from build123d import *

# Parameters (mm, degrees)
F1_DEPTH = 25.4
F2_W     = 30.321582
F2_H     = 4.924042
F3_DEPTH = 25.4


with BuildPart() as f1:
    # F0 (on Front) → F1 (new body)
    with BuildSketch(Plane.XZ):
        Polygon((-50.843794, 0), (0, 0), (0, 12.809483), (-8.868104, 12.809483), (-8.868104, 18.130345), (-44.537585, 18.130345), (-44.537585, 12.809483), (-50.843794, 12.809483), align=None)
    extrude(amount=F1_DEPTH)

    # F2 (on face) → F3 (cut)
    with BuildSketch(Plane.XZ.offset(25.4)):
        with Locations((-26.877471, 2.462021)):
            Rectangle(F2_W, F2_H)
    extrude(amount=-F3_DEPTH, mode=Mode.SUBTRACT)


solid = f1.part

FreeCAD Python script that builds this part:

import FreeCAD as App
import Part
import Sketcher
from FreeCAD import Vector
Q = App.Units.Quantity

doc = App.newDocument("Part")
body = doc.addObject("PartDesign::Body", "Body")

# Sketch on XZ plane
sketch1 = body.newObject("Sketcher::SketchObject", "Sketch")
sketch1.AttachmentSupport = (doc.getObject("XZ_Plane"), [""])
sketch1.MapMode = "FlatFace"
sketch1.addGeometry([
    Part.LineSegment(Vector(-51, 0, 0), Vector(0, 0, 0)),  # 0
    Part.LineSegment(Vector(0, 0, 0), Vector(0, 13, 0)),  # 1
    Part.LineSegment(Vector(0, 13, 0), Vector(-9, 13, 0)),  # 2
    Part.LineSegment(Vector(-9, 13, 0), Vector(-9, 18, 0)),  # 3
    Part.LineSegment(Vector(-9, 18, 0), Vector(-45, 18, 0)),  # 4
    Part.LineSegment(Vector(-45, 18, 0), Vector(-45, 13, 0)),  # 5
    Part.LineSegment(Vector(-45, 13, 0), Vector(-51, 13, 0)),  # 6
    Part.LineSegment(Vector(-51, 13, 0), Vector(-51, 0, 0)),  # 7
], False)
sketch1.addConstraint([
    Sketcher.Constraint("Coincident", 0, 2, 1, 1),
    Sketcher.Constraint("Coincident", 1, 2, 2, 1),
    Sketcher.Constraint("Coincident", 2, 2, 3, 1),
    Sketcher.Constraint("Coincident", 3, 2, 4, 1),
    Sketcher.Constraint("Coincident", 4, 2, 5, 1),
    Sketcher.Constraint("Coincident", 5, 2, 6, 1),
    Sketcher.Constraint("Coincident", 6, 2, 7, 1),
    Sketcher.Constraint("Coincident", 7, 2, 0, 1),
    Sketcher.Constraint("Horizontal", 0),
    Sketcher.Constraint("Vertical", 1),
    Sketcher.Constraint("Horizontal", 2),
    Sketcher.Constraint("Vertical", 3),
    Sketcher.Constraint("Horizontal", 4),
    Sketcher.Constraint("Vertical", 5),
    Sketcher.Constraint("Horizontal", 6),
    Sketcher.Constraint("Vertical", 7),
    Sketcher.Constraint("Coincident", 0, 2, -1, 1),
    Sketcher.Constraint("Horizontal", 2, 2, 5, 2),
    Sketcher.Constraint("DistanceX", 4, 2, 4, 1, 35.669481),
    Sketcher.Constraint("DistanceX", 6, 2, 6, 1, 6.306209),
    Sketcher.Constraint("DistanceY", 3, 1, 3, 2, 5.320862),
    Sketcher.Constraint("DistanceX", 0, 1, 0, 2, 50.843794),
    Sketcher.Constraint("DistanceY", 1, 1, 1, 2, 12.809483),
])
pad1 = body.newObject("PartDesign::Pad", "Pad")
pad1.Profile = sketch1
pad1.Length = Q("1 in")

# Sketch on XZ plane
sketch2 = body.newObject("Sketcher::SketchObject", "Sketch001")
sketch2.AttachmentSupport = (doc.getObject("XZ_Plane"), [""])
sketch2.MapMode = "FlatFace"
sketch2.AttachmentOffset = App.Placement(Vector(0, 0, 1 * 25.4), App.Rotation())
sketch2.addGeometry([
    Part.LineSegment(Vector(-42, 4.9, 0), Vector(-42, 0, 0)),
    Part.LineSegment(Vector(-42, 0, 0), Vector(-11.7, 0, 0)),
    Part.LineSegment(Vector(-11.7, 0, 0), Vector(-11.7, 4.9, 0)),
    Part.LineSegment(Vector(-11.7, 4.9, 0), Vector(-42, 4.9, 0)),
], False)
sketch2.addConstraint([
    Sketcher.Constraint("Coincident", 0, 2, 1, 1),
    Sketcher.Constraint("Coincident", 1, 2, 2, 1),
    Sketcher.Constraint("Coincident", 2, 2, 3, 1),
    Sketcher.Constraint("Coincident", 3, 2, 0, 1),
    Sketcher.Constraint("Vertical", 0),
    Sketcher.Constraint("Horizontal", 1),
    Sketcher.Constraint("Vertical", 2),
    Sketcher.Constraint("Horizontal", 3),
    Sketcher.Constraint("PointOnObject", 0, 2, -1),
    Sketcher.Constraint("DistanceX", 1, 1, 1, 2, 30.321582),
    Sketcher.Constraint("DistanceY", 0, 2, 0, 1, 4.924042),
    Sketcher.Constraint("DistanceX", 1, 2, -1, 1, 11.71668),
])
pocket1 = body.newObject("PartDesign::Pocket", "Pocket")
pocket1.Profile = sketch2
pocket1.Length = Q("1 in")

doc.recompute()
